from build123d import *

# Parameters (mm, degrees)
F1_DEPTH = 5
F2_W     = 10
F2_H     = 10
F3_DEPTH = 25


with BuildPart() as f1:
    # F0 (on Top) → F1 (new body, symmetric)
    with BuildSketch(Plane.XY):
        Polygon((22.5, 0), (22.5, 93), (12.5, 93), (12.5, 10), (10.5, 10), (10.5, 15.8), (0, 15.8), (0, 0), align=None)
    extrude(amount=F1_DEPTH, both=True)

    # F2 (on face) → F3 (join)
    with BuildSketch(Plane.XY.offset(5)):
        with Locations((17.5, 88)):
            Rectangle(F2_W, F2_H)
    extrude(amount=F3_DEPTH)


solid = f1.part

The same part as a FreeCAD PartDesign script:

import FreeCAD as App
import Part
import Sketcher
Q = App.Units.Quantity

doc = App.newDocument("Part")
body = doc.addObject("PartDesign::Body", "Body")

# Sketch on XY plane
sketch1 = doc.addObject("Sketcher::SketchObject", "Sketch")
body.addObject(sketch1)
sketch1.AttachmentSupport = (doc.XY_Plane, [""])
sketch1.MapMode = "FlatFace"
sketch1.addGeometry(Part.LineSegment(App.Vector(22.5, 0, 0), App.Vector(22.5, 93, 0)), False)
sketch1.addGeometry(Part.LineSegment(App.Vector(22.5, 93, 0), App.Vector(12.5, 93, 0)), False)
sketch1.addGeometry(Part.LineSegment(App.Vector(12.5, 93, 0), App.Vector(12.5, 10, 0)), False)
sketch1.addGeometry(Part.LineSegment(App.Vector(12.5, 10, 0), App.Vector(10.5, 10, 0)), False)
sketch1.addGeometry(Part.LineSegment(App.Vector(10.5, 10, 0), App.Vector(10.5, 15.8, 0)), False)
sketch1.addGeometry(Part.LineSegment(App.Vector(10.5, 15.8, 0), App.Vector(0, 15.8, 0)), False)
sketch1.addGeometry(Part.LineSegment(App.Vector(0, 15.8, 0), App.Vector(0, 0, 0)), False)
sketch1.addGeometry(Part.LineSegment(App.Vector(0, 0, 0), App.Vector(22.5, 0, 0)), False)
sketch1.addConstraint(Sketcher.Constraint("Coincident", 0, 2, 1, 1))
sketch1.addConstraint(Sketcher.Constraint("Coincident", 1, 2, 2, 1))
sketch1.addConstraint(Sketcher.Constraint("Coincident", 2, 2, 3, 1))
sketch1.addConstraint(Sketcher.Constraint("Coincident", 3, 2, 4, 1))
sketch1.addConstraint(Sketcher.Constraint("Coincident", 4, 2, 5, 1))
sketch1.addConstraint(Sketcher.Constraint("Coincident", 5, 2, 6, 1))
sketch1.addConstraint(Sketcher.Constraint("Coincident", 6, 2, 7, 1))
sketch1.addConstraint(Sketcher.Constraint("Coincident", 7, 2, 0, 1))
sketch1.addConstraint(Sketcher.Constraint("Vertical", 0))
sketch1.addConstraint(Sketcher.Constraint("Horizontal", 1))
sketch1.addConstraint(Sketcher.Constraint("Vertical", 2))
sketch1.addConstraint(Sketcher.Constraint("Horizontal", 3))
sketch1.addConstraint(Sketcher.Constraint("Vertical", 4))
sketch1.addConstraint(Sketcher.Constraint("Horizontal", 5))
sketch1.addConstraint(Sketcher.Constraint("Vertical", 6))
sketch1.addConstraint(Sketcher.Constraint("Horizontal", 7))
sketch1.addConstraint(Sketcher.Constraint("Coincident", 6, 2, -1, 1))
sketch1.addConstraint(Sketcher.Constraint("DistanceX", 1, 2, 1, 1, Q("10 mm")))
sketch1.addConstraint(Sketcher.Constraint("DistanceX", 3, 2, 3, 1, Q("2 mm")))
sketch1.addConstraint(Sketcher.Constraint("DistanceY", 0, 1, 0, 2, Q("93 mm")))
sketch1.addConstraint(Sketcher.Constraint("DistanceY", 2, 2, 2, 1, Q("83 mm")))
sketch1.addConstraint(Sketcher.Constraint("DistanceX", 5, 2, 5, 1, Q("10.5 mm")))
sketch1.addConstraint(Sketcher.Constraint("DistanceY", 4, 1, 4, 2, Q("5.8 mm")))
pad1 = doc.addObject("PartDesign::Pad", "Pad")
body.addObject(pad1)
pad1.Profile = sketch1
pad1.Length = 10
pad1.Midplane = True

# Sketch on XY plane
sketch2 = doc.addObject("Sketcher::SketchObject", "Sketch001")
body.addObject(sketch2)
sketch2.AttachmentSupport = (doc.XY_Plane, [""])
sketch2.MapMode = "FlatFace"
sketch2.AttachmentOffset = App.Placement(App.Vector(0, 0, 5), App.Rotation())
sketch2.addGeometry(Part.LineSegment(App.Vector(12, 93, 0), App.Vector(12, 83, 0)), False)
sketch2.addGeometry(Part.LineSegment(App.Vector(12, 83, 0), App.Vector(22, 83, 0)), False)
sketch2.addGeometry(Part.LineSegment(App.Vector(22, 83, 0), App.Vector(22, 93, 0)), False)
sketch2.addGeometry(Part.LineSegment(App.Vector(22, 93, 0), App.Vector(12, 93, 0)), False)
sketch2.addConstraint(Sketcher.Constraint("Coincident", 0, 2, 1, 1))
sketch2.addConstraint(Sketcher.Constraint("Coincident", 1, 2, 2, 1))
sketch2.addConstraint(Sketcher.Constraint("Coincident", 2, 2, 3, 1))
sketch2.addConstraint(Sketcher.Constraint("Coincident", 3, 2, 0, 1))
sketch2.addConstraint(Sketcher.Constraint("Vertical", 0))
sketch2.addConstraint(Sketcher.Constraint("Horizontal", 1))
sketch2.addConstraint(Sketcher.Constraint("Vertical", 2))
sketch2.addConstraint(Sketcher.Constraint("Horizontal", 3))
sketch2.addConstraint(Sketcher.Constraint("Equal", 3, 0))
sketch2.addConstraint(Sketcher.Constraint("DistanceX", 1, 1, 1, 2, Q("10 mm")))
sketch2.addConstraint(Sketcher.Constraint("DistanceY", -1, 1, 0, 2, Q("83 mm")))
sketch2.addConstraint(Sketcher.Constraint("DistanceX", -1, 1, 0, 2, Q("12.5 mm")))
pad2 = doc.addObject("PartDesign::Pad", "Pad001")
body.addObject(pad2)
pad2.Profile = sketch2
pad2.Length = 25

doc.recompute()
